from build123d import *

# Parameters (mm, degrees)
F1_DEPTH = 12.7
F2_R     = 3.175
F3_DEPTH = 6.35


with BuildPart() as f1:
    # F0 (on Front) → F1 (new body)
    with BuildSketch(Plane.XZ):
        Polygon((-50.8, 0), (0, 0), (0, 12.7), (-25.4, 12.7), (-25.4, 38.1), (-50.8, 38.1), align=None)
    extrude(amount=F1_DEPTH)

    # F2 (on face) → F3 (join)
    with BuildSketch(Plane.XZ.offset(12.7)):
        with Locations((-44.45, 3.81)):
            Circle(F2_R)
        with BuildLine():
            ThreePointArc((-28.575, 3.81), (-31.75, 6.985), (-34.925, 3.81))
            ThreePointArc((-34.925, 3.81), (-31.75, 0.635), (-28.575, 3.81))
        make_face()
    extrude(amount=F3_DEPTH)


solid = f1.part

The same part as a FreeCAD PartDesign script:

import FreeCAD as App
import Part
import Sketcher
Q = App.Units.Quantity

doc = App.newDocument("Part")
body = doc.addObject("PartDesign::Body", "Body")

# Sketch on XZ plane
sketch1 = body.newObject("Sketcher::SketchObject", "Sketch")
sketch1.AttachmentSupport = (doc.getObject("XZ_Plane"), [""])
sketch1.MapMode = "FlatFace"
sketch1.addGeometry(Part.LineSegment(App.Vector(-51, 0, 0), App.Vector(0, 0, 0)), False)
sketch1.addGeometry(Part.LineSegment(App.Vector(0, 0, 0), App.Vector(0, 13, 0)), False)
sketch1.addGeometry(Part.LineSegment(App.Vector(0, 13, 0), App.Vector(-25, 13, 0)), False)
sketch1.addGeometry(Part.LineSegment(App.Vector(-25, 13, 0), App.Vector(-25, 38, 0)), False)
sketch1.addGeometry(Part.LineSegment(App.Vector(-25, 38, 0), App.Vector(-51, 38, 0)), False)
sketch1.addGeometry(Part.LineSegment(App.Vector(-51, 38, 0), App.Vector(-51, 0, 0)), False)
sketch1.addConstraint(Sketcher.Constraint("Coincident", 0, 2, 1, 1))
sketch1.addConstraint(Sketcher.Constraint("Coincident", 1, 2, 2, 1))
sketch1.addConstraint(Sketcher.Constraint("Coincident", 2, 2, 3, 1))
sketch1.addConstraint(Sketcher.Constraint("Coincident", 3, 2, 4, 1))
sketch1.addConstraint(Sketcher.Constraint("Coincident", 4, 2, 5, 1))
sketch1.addConstraint(Sketcher.Constraint("Coincident", 5, 2, 0, 1))
sketch1.addConstraint(Sketcher.Constraint("Horizontal", 0))
sketch1.addConstraint(Sketcher.Constraint("Vertical", 1))
sketch1.addConstraint(Sketcher.Constraint("Horizontal", 2))
sketch1.addConstraint(Sketcher.Constraint("Vertical", 3))
sketch1.addConstraint(Sketcher.Constraint("Horizontal", 4))
sketch1.addConstraint(Sketcher.Constraint("Vertical", 5))
sketch1.addConstraint(Sketcher.Constraint("Coincident", 0, 2, -1, 1))
sketch1.addConstraint(Sketcher.Constraint("Equal", 2, 4))
sketch1.addConstraint(Sketcher.Constraint("Equal", 4, 3))
sketch1.addConstraint(Sketcher.Constraint("DistanceX", 0, 1, 0, 2, Q("2 in")))
sketch1.addConstraint(Sketcher.Constraint("DistanceY", 1, 1, 1, 2, Q("0.5 in")))
pad1 = body.newObject("PartDesign::Pad", "Pad")
pad1.Profile = sketch1
pad1.Length = Q("0.5 in")

# Sketch on XZ plane
sketch2 = body.newObject("Sketcher::SketchObject", "Sketch001")
sketch2.AttachmentSupport = (doc.getObject("XZ_Plane"), [""])
sketch2.MapMode = "FlatFace"
sketch2.AttachmentOffset = App.Placement(App.Vector(0, 0, 0.5 * 25.4), App.Rotation())
sketch2.addGeometry(Part.Circle(App.Vector(-44.5, 3.8, 0), App.Vector(0, 0, 1), 3.2), False)
sketch2.addGeometry(Part.Circle(App.Vector(-31.8, 3.8, 0), App.Vector(0, 0, 1), 3.2), False)
sketch2.addConstraint(Sketcher.Constraint("Equal", 0, 1))
sketch2.addConstraint(Sketcher.Constraint("Horizontal", 0, 3, 1, 3))
sketch2.addConstraint(Sketcher.Constraint("Diameter", 0, Q("0.25 in")))
sketch2.addConstraint(Sketcher.Constraint("DistanceX", 0, 3, 1, 3, Q("0.5 in")))
sketch2.addConstraint(Sketcher.Constraint("DistanceX", 0, 3, -1, 1, Q("1.75 in")))
sketch2.addConstraint(Sketcher.Constraint("DistanceY", -1, 1, 0, 3, Q("0.15 in")))
pad2 = body.newObject("PartDesign::Pad", "Pad001")
pad2.Profile = sketch2
pad2.Length = Q("0.25 in")

doc.recompute()
